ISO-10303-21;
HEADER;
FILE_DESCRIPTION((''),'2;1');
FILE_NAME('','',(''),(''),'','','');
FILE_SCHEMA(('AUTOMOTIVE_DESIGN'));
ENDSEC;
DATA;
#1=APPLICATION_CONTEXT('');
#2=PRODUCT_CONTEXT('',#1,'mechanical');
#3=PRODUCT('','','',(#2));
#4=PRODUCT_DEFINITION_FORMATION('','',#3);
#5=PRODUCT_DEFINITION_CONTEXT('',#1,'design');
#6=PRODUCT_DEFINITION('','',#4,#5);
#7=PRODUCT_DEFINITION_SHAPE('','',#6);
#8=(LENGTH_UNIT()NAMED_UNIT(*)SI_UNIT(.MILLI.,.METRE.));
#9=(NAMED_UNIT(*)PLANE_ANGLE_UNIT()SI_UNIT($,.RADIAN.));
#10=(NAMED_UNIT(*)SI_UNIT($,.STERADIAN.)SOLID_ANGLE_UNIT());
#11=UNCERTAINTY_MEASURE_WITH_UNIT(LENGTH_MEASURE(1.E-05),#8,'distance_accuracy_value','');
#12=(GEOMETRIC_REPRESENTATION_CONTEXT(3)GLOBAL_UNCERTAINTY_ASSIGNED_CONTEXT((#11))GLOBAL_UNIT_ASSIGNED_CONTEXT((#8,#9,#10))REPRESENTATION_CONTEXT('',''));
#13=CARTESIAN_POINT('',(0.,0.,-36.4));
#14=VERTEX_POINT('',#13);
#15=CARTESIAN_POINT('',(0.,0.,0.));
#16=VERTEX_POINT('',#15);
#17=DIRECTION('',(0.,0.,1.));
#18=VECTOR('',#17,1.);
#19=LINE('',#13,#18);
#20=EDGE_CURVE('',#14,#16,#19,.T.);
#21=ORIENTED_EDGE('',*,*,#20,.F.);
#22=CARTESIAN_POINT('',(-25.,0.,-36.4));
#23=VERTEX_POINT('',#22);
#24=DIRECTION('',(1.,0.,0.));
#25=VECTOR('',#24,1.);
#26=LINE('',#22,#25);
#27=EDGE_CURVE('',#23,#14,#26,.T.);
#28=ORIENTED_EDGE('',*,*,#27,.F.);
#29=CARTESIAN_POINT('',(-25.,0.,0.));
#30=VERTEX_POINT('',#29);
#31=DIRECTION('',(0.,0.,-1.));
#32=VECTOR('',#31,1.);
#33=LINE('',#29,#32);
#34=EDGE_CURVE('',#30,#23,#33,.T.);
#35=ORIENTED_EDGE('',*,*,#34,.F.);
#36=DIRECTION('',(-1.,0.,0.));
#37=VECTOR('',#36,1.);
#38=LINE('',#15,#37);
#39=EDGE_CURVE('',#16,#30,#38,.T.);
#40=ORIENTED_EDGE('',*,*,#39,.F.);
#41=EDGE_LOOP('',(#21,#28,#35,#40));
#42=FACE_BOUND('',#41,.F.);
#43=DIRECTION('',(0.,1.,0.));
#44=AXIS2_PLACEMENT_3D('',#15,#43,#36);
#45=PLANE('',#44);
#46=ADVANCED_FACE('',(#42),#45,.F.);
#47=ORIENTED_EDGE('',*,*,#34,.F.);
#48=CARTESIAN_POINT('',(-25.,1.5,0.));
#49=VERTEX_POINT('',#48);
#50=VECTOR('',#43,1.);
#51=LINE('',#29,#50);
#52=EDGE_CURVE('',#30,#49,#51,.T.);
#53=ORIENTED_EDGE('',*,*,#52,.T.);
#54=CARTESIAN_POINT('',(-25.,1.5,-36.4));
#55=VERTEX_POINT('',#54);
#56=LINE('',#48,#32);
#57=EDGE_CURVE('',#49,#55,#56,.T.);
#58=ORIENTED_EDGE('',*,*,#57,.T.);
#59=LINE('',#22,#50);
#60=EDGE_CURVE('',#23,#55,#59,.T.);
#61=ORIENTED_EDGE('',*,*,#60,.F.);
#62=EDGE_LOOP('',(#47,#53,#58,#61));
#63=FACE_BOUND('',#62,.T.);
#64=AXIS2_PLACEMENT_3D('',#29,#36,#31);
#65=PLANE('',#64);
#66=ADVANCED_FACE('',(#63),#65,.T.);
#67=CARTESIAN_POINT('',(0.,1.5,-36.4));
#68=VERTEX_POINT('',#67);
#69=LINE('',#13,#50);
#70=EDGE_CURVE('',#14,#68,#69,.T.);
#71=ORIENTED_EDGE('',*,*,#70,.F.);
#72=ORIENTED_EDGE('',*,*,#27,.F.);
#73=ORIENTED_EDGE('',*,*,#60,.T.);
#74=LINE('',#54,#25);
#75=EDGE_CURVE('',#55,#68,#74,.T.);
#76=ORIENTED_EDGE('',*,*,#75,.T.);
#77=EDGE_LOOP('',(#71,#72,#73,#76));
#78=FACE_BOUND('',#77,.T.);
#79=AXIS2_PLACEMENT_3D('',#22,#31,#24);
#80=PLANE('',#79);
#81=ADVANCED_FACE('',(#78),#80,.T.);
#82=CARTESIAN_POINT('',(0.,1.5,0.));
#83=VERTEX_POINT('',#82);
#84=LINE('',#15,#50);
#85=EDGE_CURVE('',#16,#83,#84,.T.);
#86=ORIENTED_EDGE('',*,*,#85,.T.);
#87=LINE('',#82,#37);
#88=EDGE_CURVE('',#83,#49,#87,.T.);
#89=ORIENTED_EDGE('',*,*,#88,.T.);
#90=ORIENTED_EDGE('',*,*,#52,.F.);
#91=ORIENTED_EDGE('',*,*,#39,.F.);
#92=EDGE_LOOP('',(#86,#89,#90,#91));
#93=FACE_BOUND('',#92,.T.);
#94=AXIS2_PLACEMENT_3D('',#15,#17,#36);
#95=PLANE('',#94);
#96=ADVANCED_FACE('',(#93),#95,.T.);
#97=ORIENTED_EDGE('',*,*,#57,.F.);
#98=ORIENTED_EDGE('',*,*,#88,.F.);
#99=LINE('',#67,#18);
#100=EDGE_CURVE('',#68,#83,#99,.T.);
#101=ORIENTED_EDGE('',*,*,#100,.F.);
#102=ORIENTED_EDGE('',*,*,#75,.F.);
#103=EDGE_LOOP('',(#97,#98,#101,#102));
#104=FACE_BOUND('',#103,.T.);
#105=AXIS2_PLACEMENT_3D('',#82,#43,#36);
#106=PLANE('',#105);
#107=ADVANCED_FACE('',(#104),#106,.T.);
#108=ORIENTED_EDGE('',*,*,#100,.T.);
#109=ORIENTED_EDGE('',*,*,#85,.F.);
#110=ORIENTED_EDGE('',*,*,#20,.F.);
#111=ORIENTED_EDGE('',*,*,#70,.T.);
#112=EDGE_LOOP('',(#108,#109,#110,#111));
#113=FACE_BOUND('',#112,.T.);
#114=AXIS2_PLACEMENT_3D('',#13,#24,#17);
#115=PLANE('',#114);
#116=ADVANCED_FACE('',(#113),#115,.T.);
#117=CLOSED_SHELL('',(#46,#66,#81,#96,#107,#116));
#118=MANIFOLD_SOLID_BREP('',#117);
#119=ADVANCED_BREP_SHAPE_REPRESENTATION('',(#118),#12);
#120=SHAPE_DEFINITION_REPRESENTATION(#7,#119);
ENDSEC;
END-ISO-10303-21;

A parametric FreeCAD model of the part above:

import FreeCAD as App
import Part
import Sketcher
Q = App.Units.Quantity

doc = App.newDocument("Part")
params = doc.addObject("Spreadsheet::Sheet", "Params")
for row, (alias, value) in enumerate([
    ("sketch1_width", "25 mm"),
    ("sketch1_height", "36.4 mm"),
    ("pad1_length", "1.5 mm"),
], start=1):
    params.set(f"A{row}", alias)
    params.set(f"B{row}", "=" + value)
    params.setAlias(f"B{row}", alias)

body = doc.addObject("PartDesign::Body", "Body")

sketch1 = body.newObject("Sketcher::SketchObject", "Sketch")
sketch1.AttachmentSupport = (doc.getObject("XZ_Plane"), [""])
sketch1.MapMode = "FlatFace"
sketch1.addGeometry([
    Part.LineSegment(App.Vector(-25, 0, 0), App.Vector(0, 0, 0)),
    Part.LineSegment(App.Vector(0, 0, 0), App.Vector(0, -36, 0)),
    Part.LineSegment(App.Vector(0, -36, 0), App.Vector(-25, -36, 0)),
    Part.LineSegment(App.Vector(-25, -36, 0), App.Vector(-25, 0, 0)),
], False)
sketch1.addConstraint([
    Sketcher.Constraint("Coincident", 0, 2, 1, 1),
    Sketcher.Constraint("Coincident", 1, 2, 2, 1),
    Sketcher.Constraint("Coincident", 2, 2, 3, 1),
    Sketcher.Constraint("Coincident", 3, 2, 0, 1),
    Sketcher.Constraint("Horizontal", 0),
    Sketcher.Constraint("Vertical", 1),
    Sketcher.Constraint("Horizontal", 2),
    Sketcher.Constraint("Vertical", 3),
    Sketcher.Constraint("Coincident", 0, 2, -1, 1),
    Sketcher.Constraint("DistanceX", 0, 1, 0, 2, Q("25 mm")),
    Sketcher.Constraint("DistanceY", 1, 2, 1, 1, Q("36.4 mm")),
])
sketch1.setExpression("Constraints[9]", "Params.sketch1_width")
sketch1.setExpression("Constraints[10]", "Params.sketch1_height")
pad1 = body.newObject("PartDesign::Pad", "Pad")
pad1.Profile = sketch1
pad1.setExpression("Length", "Params.pad1_length")
pad1.Reversed = True

doc.recompute()
